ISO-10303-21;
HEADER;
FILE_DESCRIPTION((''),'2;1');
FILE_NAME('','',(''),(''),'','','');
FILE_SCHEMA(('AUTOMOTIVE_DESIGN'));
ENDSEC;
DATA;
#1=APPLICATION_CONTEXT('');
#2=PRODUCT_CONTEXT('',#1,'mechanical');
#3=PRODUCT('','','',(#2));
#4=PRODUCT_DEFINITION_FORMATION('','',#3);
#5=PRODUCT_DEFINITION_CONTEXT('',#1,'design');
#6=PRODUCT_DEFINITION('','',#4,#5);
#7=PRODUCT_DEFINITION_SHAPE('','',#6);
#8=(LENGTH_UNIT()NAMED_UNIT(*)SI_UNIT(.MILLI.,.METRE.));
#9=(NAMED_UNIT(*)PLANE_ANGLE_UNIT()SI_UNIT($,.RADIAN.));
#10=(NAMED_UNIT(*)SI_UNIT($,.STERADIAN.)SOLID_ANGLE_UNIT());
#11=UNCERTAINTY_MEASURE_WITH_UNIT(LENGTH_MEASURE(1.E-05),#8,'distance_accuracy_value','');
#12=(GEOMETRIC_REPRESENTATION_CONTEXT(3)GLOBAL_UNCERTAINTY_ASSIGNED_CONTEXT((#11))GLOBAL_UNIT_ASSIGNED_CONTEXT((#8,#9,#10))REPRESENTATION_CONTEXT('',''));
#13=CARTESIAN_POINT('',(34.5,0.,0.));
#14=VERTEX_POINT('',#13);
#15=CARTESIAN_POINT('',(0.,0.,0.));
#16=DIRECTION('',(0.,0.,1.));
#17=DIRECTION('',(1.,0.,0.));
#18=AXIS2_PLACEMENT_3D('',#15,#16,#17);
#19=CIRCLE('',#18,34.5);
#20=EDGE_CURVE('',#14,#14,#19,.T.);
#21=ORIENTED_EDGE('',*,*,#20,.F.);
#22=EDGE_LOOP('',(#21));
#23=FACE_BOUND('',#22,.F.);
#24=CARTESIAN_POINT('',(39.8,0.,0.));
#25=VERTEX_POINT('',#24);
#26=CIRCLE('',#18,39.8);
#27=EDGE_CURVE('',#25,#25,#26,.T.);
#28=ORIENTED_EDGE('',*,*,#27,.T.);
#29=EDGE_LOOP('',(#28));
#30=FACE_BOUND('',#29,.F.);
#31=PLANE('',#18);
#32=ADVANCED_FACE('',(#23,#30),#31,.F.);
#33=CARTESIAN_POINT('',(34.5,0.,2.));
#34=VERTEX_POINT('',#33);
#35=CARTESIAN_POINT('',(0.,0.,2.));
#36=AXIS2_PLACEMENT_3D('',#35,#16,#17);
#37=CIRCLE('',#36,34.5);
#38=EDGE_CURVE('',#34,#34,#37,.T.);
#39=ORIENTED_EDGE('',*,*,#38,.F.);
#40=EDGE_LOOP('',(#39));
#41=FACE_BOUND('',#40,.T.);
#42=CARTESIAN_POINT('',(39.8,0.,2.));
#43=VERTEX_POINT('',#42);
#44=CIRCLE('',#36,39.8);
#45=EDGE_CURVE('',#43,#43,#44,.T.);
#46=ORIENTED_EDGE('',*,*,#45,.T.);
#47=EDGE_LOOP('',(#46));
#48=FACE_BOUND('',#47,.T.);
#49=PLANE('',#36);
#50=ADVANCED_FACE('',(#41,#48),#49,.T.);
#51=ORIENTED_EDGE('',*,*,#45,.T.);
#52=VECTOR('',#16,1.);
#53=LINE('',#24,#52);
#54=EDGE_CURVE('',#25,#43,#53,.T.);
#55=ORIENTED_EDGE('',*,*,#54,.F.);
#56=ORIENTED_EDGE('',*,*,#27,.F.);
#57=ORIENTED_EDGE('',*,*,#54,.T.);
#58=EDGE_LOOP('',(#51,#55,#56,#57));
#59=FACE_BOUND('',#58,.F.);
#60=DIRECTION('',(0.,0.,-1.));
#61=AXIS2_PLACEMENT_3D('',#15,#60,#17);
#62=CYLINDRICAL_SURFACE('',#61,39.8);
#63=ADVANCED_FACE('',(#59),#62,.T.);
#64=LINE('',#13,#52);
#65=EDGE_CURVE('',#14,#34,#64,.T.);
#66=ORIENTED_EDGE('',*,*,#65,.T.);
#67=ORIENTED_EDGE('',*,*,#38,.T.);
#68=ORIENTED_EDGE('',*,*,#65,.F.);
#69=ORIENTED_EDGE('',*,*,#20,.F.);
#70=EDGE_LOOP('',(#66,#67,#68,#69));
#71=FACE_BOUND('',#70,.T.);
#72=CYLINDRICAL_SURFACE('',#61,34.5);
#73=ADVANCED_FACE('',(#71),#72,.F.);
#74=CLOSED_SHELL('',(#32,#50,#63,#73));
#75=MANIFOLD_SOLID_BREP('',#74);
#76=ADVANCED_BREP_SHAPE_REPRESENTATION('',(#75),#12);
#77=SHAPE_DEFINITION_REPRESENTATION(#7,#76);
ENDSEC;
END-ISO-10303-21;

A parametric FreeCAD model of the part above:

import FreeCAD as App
import Part
import Sketcher
Q = App.Units.Quantity

doc = App.newDocument("Part")
params = doc.addObject("Spreadsheet::Sheet", "Params")
for row, (alias, value) in enumerate([
    ("sketch1_diameter", "69 mm"),
    ("sketch1_diameter2", "79.6 mm"),
    ("pad1_length", "2 mm"),
], start=1):
    params.set(f"A{row}", alias)
    params.set(f"B{row}", "=" + value)
    params.setAlias(f"B{row}", alias)

body = doc.addObject("PartDesign::Body", "Body")

sketch1 = body.newObject("Sketcher::SketchObject", "Sketch")
sketch1.AttachmentSupport = (doc.getObject("XY_Plane"), [""])
sketch1.MapMode = "FlatFace"
sketch1.addGeometry([
    Part.Circle(App.Vector(0, 0, 0), App.Vector(0, 0, 1), 39.8),
    Part.Circle(App.Vector(0, 0, 0), App.Vector(0, 0, 1), 34.5),
], False)
sketch1.addConstraint([
    Sketcher.Constraint("Coincident", 0, 3, -1, 1),
    Sketcher.Constraint("Coincident", 1, 3, -1, 1),
    Sketcher.Constraint("Diameter", 1, Q("69 mm")),
    Sketcher.Constraint("Diameter", 0, Q("79.6 mm")),
])
sketch1.setExpression("Constraints[2]", "Params.sketch1_diameter")
sketch1.setExpression("Constraints[3]", "Params.sketch1_diameter2")
pad1 = body.newObject("PartDesign::Pad", "Pad")
pad1.Profile = sketch1
pad1.setExpression("Length", "Params.pad1_length")

doc.recompute()
